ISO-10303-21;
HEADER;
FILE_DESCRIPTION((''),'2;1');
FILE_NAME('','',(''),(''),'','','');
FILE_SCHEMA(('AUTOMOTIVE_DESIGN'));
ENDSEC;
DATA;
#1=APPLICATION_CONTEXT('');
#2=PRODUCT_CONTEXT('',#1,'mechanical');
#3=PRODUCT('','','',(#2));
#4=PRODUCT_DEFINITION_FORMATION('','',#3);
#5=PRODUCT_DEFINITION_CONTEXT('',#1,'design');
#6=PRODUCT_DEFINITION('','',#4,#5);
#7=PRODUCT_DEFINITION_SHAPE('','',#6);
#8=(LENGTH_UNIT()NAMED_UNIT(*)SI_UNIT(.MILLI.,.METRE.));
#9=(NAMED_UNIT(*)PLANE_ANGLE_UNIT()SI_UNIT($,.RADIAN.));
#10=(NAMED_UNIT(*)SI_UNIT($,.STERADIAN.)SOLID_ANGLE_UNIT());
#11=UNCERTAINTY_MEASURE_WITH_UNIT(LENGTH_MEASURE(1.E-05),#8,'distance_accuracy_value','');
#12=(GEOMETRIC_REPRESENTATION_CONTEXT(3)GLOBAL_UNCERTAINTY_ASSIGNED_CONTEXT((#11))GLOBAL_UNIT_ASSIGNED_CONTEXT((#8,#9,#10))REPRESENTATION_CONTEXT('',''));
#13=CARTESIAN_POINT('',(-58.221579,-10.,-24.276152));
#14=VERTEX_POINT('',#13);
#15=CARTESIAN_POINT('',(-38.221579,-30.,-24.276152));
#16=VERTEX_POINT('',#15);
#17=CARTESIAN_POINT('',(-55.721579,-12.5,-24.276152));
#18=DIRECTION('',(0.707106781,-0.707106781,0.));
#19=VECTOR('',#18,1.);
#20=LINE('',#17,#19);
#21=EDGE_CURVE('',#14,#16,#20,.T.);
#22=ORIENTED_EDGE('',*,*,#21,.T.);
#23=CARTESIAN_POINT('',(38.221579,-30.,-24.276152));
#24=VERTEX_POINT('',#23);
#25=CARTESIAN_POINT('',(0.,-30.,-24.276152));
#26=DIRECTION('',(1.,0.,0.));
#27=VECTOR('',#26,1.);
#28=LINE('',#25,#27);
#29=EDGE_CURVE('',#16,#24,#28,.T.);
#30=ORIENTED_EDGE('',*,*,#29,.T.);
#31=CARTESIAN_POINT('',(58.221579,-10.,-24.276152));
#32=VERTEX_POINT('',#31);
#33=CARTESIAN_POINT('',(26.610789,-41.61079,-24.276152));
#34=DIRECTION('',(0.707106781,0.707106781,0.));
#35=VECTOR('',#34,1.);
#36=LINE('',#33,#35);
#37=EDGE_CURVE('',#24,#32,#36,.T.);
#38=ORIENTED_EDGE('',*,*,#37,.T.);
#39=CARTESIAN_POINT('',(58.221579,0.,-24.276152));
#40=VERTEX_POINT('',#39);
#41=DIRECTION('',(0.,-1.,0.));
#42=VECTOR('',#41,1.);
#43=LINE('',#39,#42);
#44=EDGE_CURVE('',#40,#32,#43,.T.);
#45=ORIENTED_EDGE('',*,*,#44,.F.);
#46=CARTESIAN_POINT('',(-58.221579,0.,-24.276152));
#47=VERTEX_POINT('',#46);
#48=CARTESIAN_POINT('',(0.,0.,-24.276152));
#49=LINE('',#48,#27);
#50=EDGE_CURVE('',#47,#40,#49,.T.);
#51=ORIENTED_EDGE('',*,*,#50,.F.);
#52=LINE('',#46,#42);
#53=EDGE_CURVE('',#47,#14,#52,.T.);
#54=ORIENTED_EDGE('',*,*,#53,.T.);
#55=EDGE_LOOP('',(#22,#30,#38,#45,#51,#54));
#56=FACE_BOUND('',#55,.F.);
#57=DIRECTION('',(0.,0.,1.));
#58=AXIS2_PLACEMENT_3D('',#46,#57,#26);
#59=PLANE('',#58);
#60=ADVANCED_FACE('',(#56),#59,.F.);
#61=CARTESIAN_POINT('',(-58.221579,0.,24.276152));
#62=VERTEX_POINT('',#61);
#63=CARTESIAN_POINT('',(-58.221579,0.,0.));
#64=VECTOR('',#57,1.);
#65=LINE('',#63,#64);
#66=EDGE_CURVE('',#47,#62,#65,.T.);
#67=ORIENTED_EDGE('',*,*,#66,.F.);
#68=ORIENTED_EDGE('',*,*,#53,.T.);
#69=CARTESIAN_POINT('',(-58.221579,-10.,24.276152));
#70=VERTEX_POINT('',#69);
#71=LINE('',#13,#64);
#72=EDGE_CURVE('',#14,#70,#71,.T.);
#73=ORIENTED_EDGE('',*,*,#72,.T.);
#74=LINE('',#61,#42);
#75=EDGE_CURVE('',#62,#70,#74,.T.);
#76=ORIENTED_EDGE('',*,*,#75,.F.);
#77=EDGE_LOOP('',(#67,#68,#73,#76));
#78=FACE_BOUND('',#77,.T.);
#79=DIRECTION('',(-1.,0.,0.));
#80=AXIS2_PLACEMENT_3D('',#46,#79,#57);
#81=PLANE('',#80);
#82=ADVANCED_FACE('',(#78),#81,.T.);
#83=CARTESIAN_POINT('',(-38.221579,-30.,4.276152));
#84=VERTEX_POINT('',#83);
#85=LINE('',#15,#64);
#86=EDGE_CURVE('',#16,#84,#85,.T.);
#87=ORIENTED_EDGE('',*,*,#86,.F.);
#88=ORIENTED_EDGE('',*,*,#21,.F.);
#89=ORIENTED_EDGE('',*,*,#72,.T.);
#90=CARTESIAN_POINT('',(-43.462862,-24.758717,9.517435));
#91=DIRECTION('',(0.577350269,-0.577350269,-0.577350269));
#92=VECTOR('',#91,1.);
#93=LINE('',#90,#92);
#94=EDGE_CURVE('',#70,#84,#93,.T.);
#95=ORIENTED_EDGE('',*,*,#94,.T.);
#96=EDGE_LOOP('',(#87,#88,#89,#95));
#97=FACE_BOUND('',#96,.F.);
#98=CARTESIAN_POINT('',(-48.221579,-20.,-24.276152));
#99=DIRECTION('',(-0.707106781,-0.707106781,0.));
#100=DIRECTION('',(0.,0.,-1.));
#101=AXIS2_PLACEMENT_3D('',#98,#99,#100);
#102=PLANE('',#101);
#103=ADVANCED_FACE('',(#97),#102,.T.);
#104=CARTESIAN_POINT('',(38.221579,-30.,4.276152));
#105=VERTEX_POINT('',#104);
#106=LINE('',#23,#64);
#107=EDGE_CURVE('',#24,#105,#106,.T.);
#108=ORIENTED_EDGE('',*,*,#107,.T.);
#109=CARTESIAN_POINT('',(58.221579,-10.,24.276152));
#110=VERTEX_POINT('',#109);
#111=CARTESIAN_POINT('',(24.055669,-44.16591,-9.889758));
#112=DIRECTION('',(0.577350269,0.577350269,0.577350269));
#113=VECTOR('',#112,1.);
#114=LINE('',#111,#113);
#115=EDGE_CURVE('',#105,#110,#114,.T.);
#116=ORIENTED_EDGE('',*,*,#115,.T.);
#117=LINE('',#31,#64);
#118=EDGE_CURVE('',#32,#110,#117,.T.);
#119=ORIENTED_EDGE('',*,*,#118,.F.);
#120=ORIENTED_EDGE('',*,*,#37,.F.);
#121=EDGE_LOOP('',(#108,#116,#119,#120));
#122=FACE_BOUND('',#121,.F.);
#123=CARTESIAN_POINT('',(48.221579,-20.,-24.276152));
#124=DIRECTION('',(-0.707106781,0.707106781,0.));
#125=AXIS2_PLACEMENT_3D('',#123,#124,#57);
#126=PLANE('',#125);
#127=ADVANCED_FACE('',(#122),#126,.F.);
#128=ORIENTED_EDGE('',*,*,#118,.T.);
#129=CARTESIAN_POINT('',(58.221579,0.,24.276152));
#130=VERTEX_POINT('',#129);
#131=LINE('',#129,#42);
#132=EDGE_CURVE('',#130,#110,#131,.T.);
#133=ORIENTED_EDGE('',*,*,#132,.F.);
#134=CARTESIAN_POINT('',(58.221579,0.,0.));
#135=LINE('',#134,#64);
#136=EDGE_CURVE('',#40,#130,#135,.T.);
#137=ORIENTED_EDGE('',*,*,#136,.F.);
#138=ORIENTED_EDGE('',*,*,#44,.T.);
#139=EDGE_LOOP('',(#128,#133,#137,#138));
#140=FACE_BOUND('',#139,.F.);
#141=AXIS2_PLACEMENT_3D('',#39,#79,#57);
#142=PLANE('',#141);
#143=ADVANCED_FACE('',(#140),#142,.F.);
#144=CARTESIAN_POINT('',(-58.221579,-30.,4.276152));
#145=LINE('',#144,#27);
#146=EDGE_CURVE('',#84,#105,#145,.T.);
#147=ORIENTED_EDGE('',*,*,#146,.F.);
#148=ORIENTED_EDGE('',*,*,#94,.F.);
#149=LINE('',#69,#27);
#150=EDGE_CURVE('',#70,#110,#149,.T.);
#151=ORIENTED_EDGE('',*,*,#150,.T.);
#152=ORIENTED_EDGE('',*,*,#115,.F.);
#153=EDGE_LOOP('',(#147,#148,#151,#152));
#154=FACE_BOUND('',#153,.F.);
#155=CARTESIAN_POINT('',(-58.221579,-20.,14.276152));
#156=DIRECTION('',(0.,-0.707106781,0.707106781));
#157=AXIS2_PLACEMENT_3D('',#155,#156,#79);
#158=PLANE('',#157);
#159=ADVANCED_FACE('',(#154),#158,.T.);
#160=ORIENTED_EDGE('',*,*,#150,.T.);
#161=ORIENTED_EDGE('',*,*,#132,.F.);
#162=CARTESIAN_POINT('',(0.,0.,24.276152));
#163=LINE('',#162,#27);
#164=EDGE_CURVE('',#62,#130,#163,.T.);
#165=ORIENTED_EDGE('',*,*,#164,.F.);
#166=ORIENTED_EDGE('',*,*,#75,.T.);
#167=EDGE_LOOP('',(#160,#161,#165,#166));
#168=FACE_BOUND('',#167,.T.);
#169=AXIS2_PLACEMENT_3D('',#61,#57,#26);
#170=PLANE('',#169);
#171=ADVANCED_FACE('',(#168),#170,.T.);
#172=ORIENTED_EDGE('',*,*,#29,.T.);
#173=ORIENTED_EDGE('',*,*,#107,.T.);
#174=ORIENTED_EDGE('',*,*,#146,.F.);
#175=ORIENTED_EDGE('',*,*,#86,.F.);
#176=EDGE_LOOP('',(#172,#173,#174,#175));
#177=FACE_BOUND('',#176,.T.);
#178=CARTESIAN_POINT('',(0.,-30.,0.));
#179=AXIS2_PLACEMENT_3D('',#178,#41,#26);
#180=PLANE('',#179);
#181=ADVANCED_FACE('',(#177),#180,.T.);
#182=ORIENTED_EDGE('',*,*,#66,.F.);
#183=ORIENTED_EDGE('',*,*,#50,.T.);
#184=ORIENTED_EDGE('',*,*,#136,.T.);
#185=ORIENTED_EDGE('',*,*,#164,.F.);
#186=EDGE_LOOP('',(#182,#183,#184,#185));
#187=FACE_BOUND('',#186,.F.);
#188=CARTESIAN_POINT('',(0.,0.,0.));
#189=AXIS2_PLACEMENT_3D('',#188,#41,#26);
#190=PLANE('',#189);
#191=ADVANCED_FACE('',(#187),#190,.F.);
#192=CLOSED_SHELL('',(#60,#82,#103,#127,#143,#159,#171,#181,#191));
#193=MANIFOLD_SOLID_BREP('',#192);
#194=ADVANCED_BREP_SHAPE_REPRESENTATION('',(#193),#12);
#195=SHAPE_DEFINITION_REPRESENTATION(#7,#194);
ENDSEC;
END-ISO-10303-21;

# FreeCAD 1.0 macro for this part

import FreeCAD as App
import Part
import Sketcher
from FreeCAD import Vector
Q = App.Units.Quantity


def edges_at(feature, points):
    """Names of the edges that pass closest to the given points."""
    edges = feature.Shape.Edges
    near = lambda p: min(range(len(edges)), key=lambda i: edges[i].distToShape(Part.Vertex(*p))[0])
    return sorted({f"Edge{near(p) + 1}" for p in points})


def add_polygon(sketch, points):
    """Adds a closed chain of lines whose ends are joined by coincident constraints."""
    first, n = sketch.GeometryCount, len(points)
    for a, b in zip(points, points[1:] + points[:1]):
        sketch.addGeometry(Part.LineSegment(App.Vector(*a, 0), App.Vector(*b, 0)), False)
    for i in range(n):
        sketch.addConstraint(Sketcher.Constraint("Coincident", first + i, 2, first + (i + 1) % n, 1))

doc = App.newDocument("Part")
body = doc.addObject("PartDesign::Body", "Body")

# Sketch on XZ plane
sketch1 = body.newObject("Sketcher::SketchObject", "Sketch")
sketch1.AttachmentSupport = (doc.getObject("XZ_Plane"), [""])
sketch1.MapMode = "FlatFace"
add_polygon(sketch1, [(-58.221579, 24.276152), (-58.221579, -24.276152), (58.221579, -24.276152), (58.221579, 24.276152)])  # lines 0-3
sketch1.addConstraint(Sketcher.Constraint("Vertical", 0))
sketch1.addConstraint(Sketcher.Constraint("Horizontal", 1))
sketch1.addConstraint(Sketcher.Constraint("Vertical", 2))
sketch1.addConstraint(Sketcher.Constraint("Horizontal", 3))
sketch1.addConstraint(Sketcher.Constraint("Symmetric", 0, 2, 2, 2, -1, 1))
sketch1.addConstraint(Sketcher.Constraint("DistanceX", 1, 1, 1, 2, Q("116.443158 mm")))
sketch1.addConstraint(Sketcher.Constraint("DistanceY", 0, 2, 0, 1, Q("48.552304 mm")))
pad1 = body.newObject("PartDesign::Pad", "Pad")
pad1.Profile = sketch1
pad1.Length = 30
doc.recompute()

chamfer = body.newObject("PartDesign::Chamfer", "Chamfer")
chamfer.Base = (pad1, edges_at(pad1, [(0, -30, 24.276)]))
chamfer.Size = 20
doc.recompute()

chamfer2 = body.newObject("PartDesign::Chamfer", "Chamfer001")
chamfer2.Base = (chamfer, edges_at(chamfer, [(-58.222, -30, -10), (58.222, -30, -10)]))
chamfer2.Size = 20

doc.recompute()
